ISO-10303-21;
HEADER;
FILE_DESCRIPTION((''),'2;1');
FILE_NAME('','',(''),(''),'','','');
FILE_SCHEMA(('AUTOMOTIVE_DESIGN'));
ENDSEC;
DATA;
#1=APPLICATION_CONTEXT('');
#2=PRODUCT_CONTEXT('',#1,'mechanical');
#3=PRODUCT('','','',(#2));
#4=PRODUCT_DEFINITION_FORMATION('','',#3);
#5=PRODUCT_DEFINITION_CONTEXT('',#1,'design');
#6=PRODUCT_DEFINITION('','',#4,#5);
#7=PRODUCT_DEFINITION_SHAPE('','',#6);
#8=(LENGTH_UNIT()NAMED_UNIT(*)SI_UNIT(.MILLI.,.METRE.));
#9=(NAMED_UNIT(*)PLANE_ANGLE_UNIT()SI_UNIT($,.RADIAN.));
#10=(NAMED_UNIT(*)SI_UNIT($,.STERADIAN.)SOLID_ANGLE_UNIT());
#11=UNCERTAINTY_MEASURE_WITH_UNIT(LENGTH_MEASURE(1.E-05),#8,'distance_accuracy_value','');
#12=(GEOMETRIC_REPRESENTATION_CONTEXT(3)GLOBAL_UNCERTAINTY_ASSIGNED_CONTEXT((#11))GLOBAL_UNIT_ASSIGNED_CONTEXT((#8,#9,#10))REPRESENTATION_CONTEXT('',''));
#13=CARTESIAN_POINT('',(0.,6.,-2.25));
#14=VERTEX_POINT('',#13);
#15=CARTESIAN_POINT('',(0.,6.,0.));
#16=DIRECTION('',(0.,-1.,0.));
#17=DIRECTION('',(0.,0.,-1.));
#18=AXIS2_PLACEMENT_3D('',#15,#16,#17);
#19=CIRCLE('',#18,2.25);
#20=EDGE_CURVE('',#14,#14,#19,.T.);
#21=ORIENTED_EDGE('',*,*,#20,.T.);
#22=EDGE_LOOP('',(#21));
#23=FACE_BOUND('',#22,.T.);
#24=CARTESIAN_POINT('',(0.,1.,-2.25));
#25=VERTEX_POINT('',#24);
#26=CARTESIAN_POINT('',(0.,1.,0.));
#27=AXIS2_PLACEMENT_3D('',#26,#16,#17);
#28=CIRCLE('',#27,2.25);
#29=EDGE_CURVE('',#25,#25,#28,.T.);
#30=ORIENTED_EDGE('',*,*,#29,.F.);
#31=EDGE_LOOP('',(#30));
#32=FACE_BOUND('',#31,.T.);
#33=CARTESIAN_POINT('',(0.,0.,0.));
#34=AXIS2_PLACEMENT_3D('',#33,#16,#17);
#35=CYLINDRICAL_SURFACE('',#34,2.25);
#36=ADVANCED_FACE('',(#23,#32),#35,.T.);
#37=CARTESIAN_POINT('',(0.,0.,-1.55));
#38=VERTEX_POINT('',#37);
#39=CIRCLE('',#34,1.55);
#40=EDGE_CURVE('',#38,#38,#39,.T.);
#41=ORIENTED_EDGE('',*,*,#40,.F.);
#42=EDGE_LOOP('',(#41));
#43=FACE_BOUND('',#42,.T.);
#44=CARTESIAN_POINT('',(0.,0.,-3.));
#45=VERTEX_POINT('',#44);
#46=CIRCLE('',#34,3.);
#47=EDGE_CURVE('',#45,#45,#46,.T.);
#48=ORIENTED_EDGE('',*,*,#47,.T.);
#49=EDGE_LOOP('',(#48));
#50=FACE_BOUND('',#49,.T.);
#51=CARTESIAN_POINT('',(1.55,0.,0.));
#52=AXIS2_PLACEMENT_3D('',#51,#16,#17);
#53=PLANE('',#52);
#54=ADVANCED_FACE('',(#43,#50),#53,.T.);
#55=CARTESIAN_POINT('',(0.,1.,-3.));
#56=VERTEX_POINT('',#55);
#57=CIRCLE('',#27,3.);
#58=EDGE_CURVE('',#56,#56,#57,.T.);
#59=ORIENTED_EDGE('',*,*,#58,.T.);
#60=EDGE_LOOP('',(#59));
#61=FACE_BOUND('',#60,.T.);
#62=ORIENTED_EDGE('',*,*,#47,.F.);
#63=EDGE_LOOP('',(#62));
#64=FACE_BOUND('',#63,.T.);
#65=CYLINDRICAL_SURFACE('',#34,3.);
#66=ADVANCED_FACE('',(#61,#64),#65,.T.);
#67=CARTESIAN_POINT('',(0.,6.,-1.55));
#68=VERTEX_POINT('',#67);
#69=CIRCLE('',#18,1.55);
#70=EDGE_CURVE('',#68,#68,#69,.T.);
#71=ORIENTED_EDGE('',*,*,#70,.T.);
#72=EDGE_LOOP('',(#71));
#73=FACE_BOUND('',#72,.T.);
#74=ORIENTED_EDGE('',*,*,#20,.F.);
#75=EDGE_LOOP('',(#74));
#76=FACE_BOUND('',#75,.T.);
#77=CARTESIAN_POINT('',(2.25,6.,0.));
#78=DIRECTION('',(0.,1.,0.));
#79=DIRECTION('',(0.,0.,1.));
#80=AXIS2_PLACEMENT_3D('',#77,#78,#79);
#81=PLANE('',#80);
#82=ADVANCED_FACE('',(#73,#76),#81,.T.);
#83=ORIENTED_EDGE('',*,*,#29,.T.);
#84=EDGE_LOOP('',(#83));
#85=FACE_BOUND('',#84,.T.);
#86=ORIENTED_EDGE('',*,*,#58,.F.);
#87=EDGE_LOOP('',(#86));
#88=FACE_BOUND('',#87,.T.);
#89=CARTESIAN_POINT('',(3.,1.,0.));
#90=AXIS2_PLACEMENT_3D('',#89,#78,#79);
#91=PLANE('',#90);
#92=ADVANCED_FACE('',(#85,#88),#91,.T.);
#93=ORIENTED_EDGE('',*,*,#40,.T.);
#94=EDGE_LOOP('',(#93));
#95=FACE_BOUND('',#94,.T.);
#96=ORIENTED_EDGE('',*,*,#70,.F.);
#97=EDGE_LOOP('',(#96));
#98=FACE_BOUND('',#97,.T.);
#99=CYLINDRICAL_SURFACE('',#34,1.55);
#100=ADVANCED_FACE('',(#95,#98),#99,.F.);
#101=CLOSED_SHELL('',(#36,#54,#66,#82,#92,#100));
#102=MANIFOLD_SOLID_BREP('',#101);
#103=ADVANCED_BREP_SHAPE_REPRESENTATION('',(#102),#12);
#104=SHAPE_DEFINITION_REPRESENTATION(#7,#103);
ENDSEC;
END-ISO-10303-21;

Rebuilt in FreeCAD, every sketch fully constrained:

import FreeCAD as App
import Part
import Sketcher

doc = App.newDocument("Part")
body = doc.addObject("PartDesign::Body", "Body")

# Sketch on XY plane
sketch1 = body.newObject("Sketcher::SketchObject", "Sketch")
sketch1.AttachmentSupport = (doc.getObject("XY_Plane"), [""])
sketch1.MapMode = "FlatFace"
sketch1.addGeometry(Part.LineSegment(App.Vector(1.6, 6, 0), App.Vector(1.6, 0, 0)), False)
sketch1.addGeometry(Part.LineSegment(App.Vector(1.6, 0, 0), App.Vector(3, 0, 0)), False)
sketch1.addGeometry(Part.LineSegment(App.Vector(3, 0, 0), App.Vector(3, 1, 0)), False)
sketch1.addGeometry(Part.LineSegment(App.Vector(3, 1, 0), App.Vector(2.2, 1, 0)), False)
sketch1.addGeometry(Part.LineSegment(App.Vector(2.2, 1, 0), App.Vector(2.2, 6, 0)), False)
sketch1.addGeometry(Part.LineSegment(App.Vector(2.2, 6, 0), App.Vector(1.6, 6, 0)), False)
sketch1.addConstraint(Sketcher.Constraint("Coincident", 0, 2, 1, 1))
sketch1.addConstraint(Sketcher.Constraint("Coincident", 1, 2, 2, 1))
sketch1.addConstraint(Sketcher.Constraint("Coincident", 2, 2, 3, 1))
sketch1.addConstraint(Sketcher.Constraint("Coincident", 3, 2, 4, 1))
sketch1.addConstraint(Sketcher.Constraint("Coincident", 4, 2, 5, 1))
sketch1.addConstraint(Sketcher.Constraint("Coincident", 5, 2, 0, 1))
sketch1.addConstraint(Sketcher.Constraint("Vertical", 0))
sketch1.addConstraint(Sketcher.Constraint("Horizontal", 1))
sketch1.addConstraint(Sketcher.Constraint("Vertical", 2))
sketch1.addConstraint(Sketcher.Constraint("Horizontal", 3))
sketch1.addConstraint(Sketcher.Constraint("Vertical", 4))
sketch1.addConstraint(Sketcher.Constraint("Horizontal", 5))
sketch1.addConstraint(Sketcher.Constraint("PointOnObject", 0, 2, -1))
sketch1.addConstraint(Sketcher.Constraint("DistanceY", 0, 2, 0, 1, 6.0))
sketch1.addConstraint(Sketcher.Constraint("DistanceY", 2, 1, 2, 2, 1.0))
sketch1.addConstraint(Sketcher.Constraint("DistanceX", 5, 2, 5, 1, 0.7))
sketch1.addConstraint(Sketcher.Constraint("DistanceX", -1, 1, 1, 2, 3.0))
sketch1.addConstraint(Sketcher.Constraint("DistanceX", 1, 1, 1, 2, 1.45))
revolution = body.newObject("PartDesign::Revolution", "Revolution")
revolution.Profile = sketch1
revolution.ReferenceAxis = (sketch1, ["V_Axis"])
revolution.Angle = 360

doc.recompute()
